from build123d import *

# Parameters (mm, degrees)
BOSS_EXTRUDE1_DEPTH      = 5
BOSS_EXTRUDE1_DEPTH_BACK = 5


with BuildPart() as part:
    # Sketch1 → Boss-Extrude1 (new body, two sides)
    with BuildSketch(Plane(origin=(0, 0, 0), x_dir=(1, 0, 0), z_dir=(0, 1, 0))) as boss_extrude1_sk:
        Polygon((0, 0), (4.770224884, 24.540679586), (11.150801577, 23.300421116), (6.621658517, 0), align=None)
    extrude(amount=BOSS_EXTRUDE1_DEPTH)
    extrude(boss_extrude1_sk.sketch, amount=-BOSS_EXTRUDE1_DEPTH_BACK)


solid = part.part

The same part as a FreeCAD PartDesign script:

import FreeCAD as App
import Part
import Sketcher
from FreeCAD import Vector
Q = App.Units.Quantity


def add_polygon(sketch, points):
    """Adds a closed chain of lines whose ends are joined by coincident constraints."""
    first, n = sketch.GeometryCount, len(points)
    for a, b in zip(points, points[1:] + points[:1]):
        sketch.addGeometry(Part.LineSegment(App.Vector(*a, 0), App.Vector(*b, 0)), False)
    for i in range(n):
        sketch.addConstraint(Sketcher.Constraint("Coincident", first + i, 2, first + (i + 1) % n, 1))

doc = App.newDocument("Part")
body = doc.addObject("PartDesign::Body", "Body")

sketch1 = body.newObject("Sketcher::SketchObject", "Sketch")
sketch1.AttachmentSupport = (doc.getObject("XZ_Plane"), [""])
sketch1.MapMode = "FlatFace"
add_polygon(sketch1, [(5, -25), (0, 0), (7, 0), (11, -23)])
sketch1.addConstraint([
    Sketcher.Constraint("Horizontal", 1),
    Sketcher.Constraint("Coincident", 0, 2, -1, 1),
    Sketcher.Constraint("Parallel", 0, 2),
    Sketcher.Constraint("Perpendicular", 2, 3),
    Sketcher.Constraint("Angle", 0, Q("101 deg")),
    Sketcher.Constraint("Distance", 0, 25.0),
    Sketcher.Constraint("Distance", 3, 6.5),
])
pad1 = body.newObject("PartDesign::Pad", "Pad")
pad1.Profile = sketch1
pad1.Type = "TwoLengths"
pad1.Length = 5
pad1.Length2 = 5
pad1.Reversed = True

doc.recompute()
